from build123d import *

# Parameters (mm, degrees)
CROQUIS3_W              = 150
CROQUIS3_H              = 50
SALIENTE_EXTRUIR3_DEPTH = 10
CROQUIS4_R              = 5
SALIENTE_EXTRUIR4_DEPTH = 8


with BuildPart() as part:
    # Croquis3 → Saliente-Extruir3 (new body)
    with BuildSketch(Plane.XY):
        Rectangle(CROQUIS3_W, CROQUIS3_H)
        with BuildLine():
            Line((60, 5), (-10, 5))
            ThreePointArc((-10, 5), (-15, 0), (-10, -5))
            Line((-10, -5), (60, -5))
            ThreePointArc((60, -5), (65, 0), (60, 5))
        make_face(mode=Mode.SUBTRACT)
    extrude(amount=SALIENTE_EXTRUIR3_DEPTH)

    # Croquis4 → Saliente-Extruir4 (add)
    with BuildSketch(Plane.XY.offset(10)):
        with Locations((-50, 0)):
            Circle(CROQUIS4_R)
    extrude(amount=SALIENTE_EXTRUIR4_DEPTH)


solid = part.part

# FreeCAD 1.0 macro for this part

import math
import FreeCAD as App
import Part
import Sketcher
Q = App.Units.Quantity


def add_polygon(sketch, points):
    """Adds a closed chain of lines whose ends are joined by coincident constraints."""
    first, n = sketch.GeometryCount, len(points)
    for a, b in zip(points, points[1:] + points[:1]):
        sketch.addGeometry(Part.LineSegment(App.Vector(*a, 0), App.Vector(*b, 0)), False)
    for i in range(n):
        sketch.addConstraint(Sketcher.Constraint("Coincident", first + i, 2, first + (i + 1) % n, 1))

doc = App.newDocument("Part")
body = doc.addObject("PartDesign::Body", "Body")

sketch1 = body.newObject("Sketcher::SketchObject", "Sketch")
sketch1.AttachmentSupport = (doc.getObject("XY_Plane"), [""])
sketch1.MapMode = "FlatFace"
add_polygon(sketch1, [(-75, 25), (-75, -25), (75, -25), (75, 25)])
sketch1.addGeometry(Part.LineSegment(App.Vector(-10, 5, 0), App.Vector(60, 5, 0)), False)
sketch1.addGeometry(Part.ArcOfCircle(Part.Circle(App.Vector(60, 0, 0), App.Vector(0, 0, 1), 5), math.radians(-90), math.radians(90)), False)
sketch1.addGeometry(Part.LineSegment(App.Vector(60, -5, 0), App.Vector(-10, -5, 0)), False)
sketch1.addGeometry(Part.ArcOfCircle(Part.Circle(App.Vector(-10, 0, 0), App.Vector(0, 0, 1), 5), math.radians(90), math.radians(270)), False)
sketch1.addConstraint(Sketcher.Constraint("Tangent", 4, 2, 5, 2))
sketch1.addConstraint(Sketcher.Constraint("Tangent", 5, 1, 6, 1))
sketch1.addConstraint(Sketcher.Constraint("Tangent", 6, 2, 7, 2))
sketch1.addConstraint(Sketcher.Constraint("Tangent", 7, 1, 4, 1))
sketch1.addConstraint(Sketcher.Constraint("Vertical", 0))
sketch1.addConstraint(Sketcher.Constraint("Horizontal", 1))
sketch1.addConstraint(Sketcher.Constraint("Vertical", 2))
sketch1.addConstraint(Sketcher.Constraint("Horizontal", 3))
sketch1.addConstraint(Sketcher.Constraint("Horizontal", 4))
sketch1.addConstraint(Sketcher.Constraint("Horizontal", 6))
sketch1.addConstraint(Sketcher.Constraint("Symmetric", 0, 2, 2, 2, -1, 1))
sketch1.addConstraint(Sketcher.Constraint("PointOnObject", 5, 3, -1))
sketch1.addConstraint(Sketcher.Constraint("Radius", 5, Q("5 mm")))
sketch1.addConstraint(Sketcher.Constraint("DistanceX", 1, 1, 1, 2, Q("150 mm")))
sketch1.addConstraint(Sketcher.Constraint("DistanceX", 4, 1, 4, 2, Q("70 mm")))
sketch1.addConstraint(Sketcher.Constraint("DistanceY", 0, 2, 0, 1, Q("50 mm")))
sketch1.addConstraint(Sketcher.Constraint("DistanceX", -1, 1, 5, 3, Q("60 mm")))
pad1 = body.newObject("PartDesign::Pad", "Pad")
pad1.Profile = sketch1
pad1.Length = 10

sketch2 = body.newObject("Sketcher::SketchObject", "Sketch001")
sketch2.AttachmentSupport = (doc.getObject("XY_Plane"), [""])
sketch2.MapMode = "FlatFace"
sketch2.AttachmentOffset = App.Placement(App.Vector(0, 0, 10), App.Rotation())
sketch2.addGeometry(Part.Circle(App.Vector(-50, 0, 0), App.Vector(0, 0, 1), 5), False)
sketch2.addConstraint(Sketcher.Constraint("PointOnObject", 0, 3, -1))
sketch2.addConstraint(Sketcher.Constraint("Diameter", 0, Q("10 mm")))
sketch2.addConstraint(Sketcher.Constraint("DistanceX", 0, 3, -1, 1, Q("50 mm")))
pad2 = body.newObject("PartDesign::Pad", "Pad001")
pad2.Profile = sketch2
pad2.Length = 8

doc.recompute()
